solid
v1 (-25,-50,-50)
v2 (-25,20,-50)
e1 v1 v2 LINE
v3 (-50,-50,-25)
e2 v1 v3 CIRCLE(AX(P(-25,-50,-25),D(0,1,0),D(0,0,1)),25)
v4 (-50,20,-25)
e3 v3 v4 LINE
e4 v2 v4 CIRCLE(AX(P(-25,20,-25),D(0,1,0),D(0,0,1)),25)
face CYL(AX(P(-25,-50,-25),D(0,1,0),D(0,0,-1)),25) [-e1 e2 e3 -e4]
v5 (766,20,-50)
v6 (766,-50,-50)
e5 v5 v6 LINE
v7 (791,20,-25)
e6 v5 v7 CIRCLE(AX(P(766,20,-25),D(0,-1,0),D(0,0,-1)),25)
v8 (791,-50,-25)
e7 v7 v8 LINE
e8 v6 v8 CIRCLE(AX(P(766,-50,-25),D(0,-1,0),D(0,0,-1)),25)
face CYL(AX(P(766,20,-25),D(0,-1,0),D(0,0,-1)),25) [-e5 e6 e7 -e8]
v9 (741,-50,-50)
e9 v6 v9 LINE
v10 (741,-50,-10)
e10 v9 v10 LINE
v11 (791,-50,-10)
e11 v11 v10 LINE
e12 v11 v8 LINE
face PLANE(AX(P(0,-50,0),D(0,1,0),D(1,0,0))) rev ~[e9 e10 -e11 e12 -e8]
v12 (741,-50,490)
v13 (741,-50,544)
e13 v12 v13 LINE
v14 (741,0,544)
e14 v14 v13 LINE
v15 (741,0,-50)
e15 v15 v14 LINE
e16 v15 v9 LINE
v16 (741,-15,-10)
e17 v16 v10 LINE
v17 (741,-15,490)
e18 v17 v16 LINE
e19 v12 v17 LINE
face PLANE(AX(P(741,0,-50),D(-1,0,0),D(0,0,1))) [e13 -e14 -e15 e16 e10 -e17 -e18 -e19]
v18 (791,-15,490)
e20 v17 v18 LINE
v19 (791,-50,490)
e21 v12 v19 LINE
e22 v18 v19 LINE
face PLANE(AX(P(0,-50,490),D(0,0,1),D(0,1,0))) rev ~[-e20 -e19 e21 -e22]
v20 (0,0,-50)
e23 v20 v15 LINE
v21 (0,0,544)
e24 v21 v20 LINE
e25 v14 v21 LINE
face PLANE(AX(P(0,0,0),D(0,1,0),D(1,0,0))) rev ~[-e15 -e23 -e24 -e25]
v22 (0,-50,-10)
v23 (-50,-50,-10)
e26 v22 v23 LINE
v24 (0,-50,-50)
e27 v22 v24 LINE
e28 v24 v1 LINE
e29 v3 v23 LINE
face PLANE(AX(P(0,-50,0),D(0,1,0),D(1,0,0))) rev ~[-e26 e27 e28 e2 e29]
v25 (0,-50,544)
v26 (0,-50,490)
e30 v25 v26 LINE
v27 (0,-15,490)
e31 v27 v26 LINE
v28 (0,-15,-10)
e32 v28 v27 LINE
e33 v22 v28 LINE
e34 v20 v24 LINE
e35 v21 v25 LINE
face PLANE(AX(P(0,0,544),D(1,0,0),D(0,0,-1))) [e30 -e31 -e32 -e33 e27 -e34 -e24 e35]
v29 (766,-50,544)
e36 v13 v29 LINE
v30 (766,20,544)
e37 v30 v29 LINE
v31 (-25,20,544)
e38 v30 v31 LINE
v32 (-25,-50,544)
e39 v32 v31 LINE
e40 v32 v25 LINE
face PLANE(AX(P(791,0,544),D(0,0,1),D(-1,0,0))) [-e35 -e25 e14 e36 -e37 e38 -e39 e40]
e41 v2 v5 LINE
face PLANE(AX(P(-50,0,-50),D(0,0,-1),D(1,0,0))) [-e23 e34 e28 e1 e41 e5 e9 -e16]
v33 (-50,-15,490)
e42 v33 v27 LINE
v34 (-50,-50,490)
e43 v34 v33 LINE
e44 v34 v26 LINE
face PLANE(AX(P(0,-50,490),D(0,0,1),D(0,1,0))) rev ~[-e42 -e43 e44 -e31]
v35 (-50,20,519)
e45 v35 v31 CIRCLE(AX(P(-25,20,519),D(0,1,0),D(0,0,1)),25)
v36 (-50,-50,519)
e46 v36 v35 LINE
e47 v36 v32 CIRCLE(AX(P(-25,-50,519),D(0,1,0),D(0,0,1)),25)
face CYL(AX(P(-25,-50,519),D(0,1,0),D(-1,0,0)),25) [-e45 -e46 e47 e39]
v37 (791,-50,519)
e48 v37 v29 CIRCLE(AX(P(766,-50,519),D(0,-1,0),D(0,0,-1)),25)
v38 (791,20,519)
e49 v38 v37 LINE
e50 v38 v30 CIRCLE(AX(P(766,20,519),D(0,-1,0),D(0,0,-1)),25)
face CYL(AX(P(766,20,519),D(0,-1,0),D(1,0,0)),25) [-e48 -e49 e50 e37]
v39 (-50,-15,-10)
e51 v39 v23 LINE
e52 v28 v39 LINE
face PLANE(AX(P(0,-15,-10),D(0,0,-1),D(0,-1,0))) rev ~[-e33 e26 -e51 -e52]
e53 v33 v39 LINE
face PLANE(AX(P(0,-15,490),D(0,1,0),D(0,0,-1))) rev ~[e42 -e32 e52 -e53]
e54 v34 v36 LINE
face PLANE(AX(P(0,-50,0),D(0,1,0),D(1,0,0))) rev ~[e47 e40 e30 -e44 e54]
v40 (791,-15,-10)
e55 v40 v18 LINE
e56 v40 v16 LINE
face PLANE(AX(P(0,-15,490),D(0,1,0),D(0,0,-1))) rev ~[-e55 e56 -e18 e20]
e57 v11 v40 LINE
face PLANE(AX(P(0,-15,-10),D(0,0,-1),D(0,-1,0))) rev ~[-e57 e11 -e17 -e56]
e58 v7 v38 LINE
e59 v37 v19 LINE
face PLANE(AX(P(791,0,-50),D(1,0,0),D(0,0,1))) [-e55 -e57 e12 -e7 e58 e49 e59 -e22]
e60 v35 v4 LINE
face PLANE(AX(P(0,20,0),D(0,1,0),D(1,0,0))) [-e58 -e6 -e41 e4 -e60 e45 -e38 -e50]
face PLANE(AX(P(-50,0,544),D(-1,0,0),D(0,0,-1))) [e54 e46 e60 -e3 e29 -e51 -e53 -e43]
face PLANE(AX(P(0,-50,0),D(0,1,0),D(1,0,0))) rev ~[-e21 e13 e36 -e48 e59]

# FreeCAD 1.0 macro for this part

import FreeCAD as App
import Part
import Sketcher

V = App.Vector
Q = App.Units.Quantity


def edges_at(feature, points):
    """Names of the edges that pass closest to the given points."""
    edges = feature.Shape.Edges
    near = lambda p: min(range(len(edges)), key=lambda i: edges[i].distToShape(Part.Vertex(*p))[0])
    return sorted({f"Edge{near(p) + 1}" for p in points})

doc = App.newDocument("Part")
body = doc.addObject("PartDesign::Body", "Body")

# Sketch on XZ plane
sketch1 = body.newObject("Sketcher::SketchObject", "Sketch")
sketch1.AttachmentSupport = (doc.getObject("XZ_Plane"), [""])
sketch1.MapMode = "FlatFace"
sketch1.addGeometry([
    Part.LineSegment(V(791, -50, 0), V(-50, -50, 0)),
    Part.LineSegment(V(-50, -50, 0), V(-50, 544, 0)),
    Part.LineSegment(V(-50, 544, 0), V(791, 544, 0)),
    Part.LineSegment(V(791, 544, 0), V(791, -50, 0)),
], False)
sketch1.addConstraint([
    Sketcher.Constraint("Coincident", 0, 2, 1, 1),
    Sketcher.Constraint("Coincident", 1, 2, 2, 1),
    Sketcher.Constraint("Coincident", 2, 2, 3, 1),
    Sketcher.Constraint("Coincident", 3, 2, 0, 1),
    Sketcher.Constraint("Horizontal", 0),
    Sketcher.Constraint("Vertical", 1),
    Sketcher.Constraint("Horizontal", 2),
    Sketcher.Constraint("Vertical", 3),
    Sketcher.Constraint("DistanceX", 0, 2, 0, 1, Q("841 mm")),
    Sketcher.Constraint("DistanceY", 1, 1, 1, 2, Q("594 mm")),
    Sketcher.Constraint("DistanceX", 0, 2, -1, 1, Q("50 mm")),
    Sketcher.Constraint("DistanceY", 0, 2, -1, 1, Q("50 mm")),
])
pad1 = body.newObject("PartDesign::Pad", "Pad")
pad1.Profile = sketch1
pad1.Length = 20
pad1.Reversed = True

# Sketch on XZ plane
sketch2 = body.newObject("Sketcher::SketchObject", "Sketch001")
sketch2.AttachmentSupport = (doc.getObject("XZ_Plane"), [""])
sketch2.MapMode = "FlatFace"
sketch2.addGeometry([
    Part.LineSegment(V(-50, -50, 0), V(-50, 544, 0)),  # 0
    Part.LineSegment(V(-50, 544, 0), V(0, 544, 0)),  # 1
    Part.LineSegment(V(0, 544, 0), V(0, -50, 0)),  # 2
    Part.LineSegment(V(0, -50, 0), V(-50, -50, 0)),  # 3
    Part.LineSegment(V(741, -50, 0), V(741, 544, 0)),  # 4
    Part.LineSegment(V(741, 544, 0), V(791, 544, 0)),  # 5
    Part.LineSegment(V(791, 544, 0), V(791, -50, 0)),  # 6
    Part.LineSegment(V(791, -50, 0), V(741, -50, 0)),  # 7
], False)
sketch2.addConstraint([
    Sketcher.Constraint("Coincident", 0, 2, 1, 1),
    Sketcher.Constraint("Coincident", 1, 2, 2, 1),
    Sketcher.Constraint("Coincident", 2, 2, 3, 1),
    Sketcher.Constraint("Coincident", 3, 2, 0, 1),
    Sketcher.Constraint("Coincident", 4, 2, 5, 1),
    Sketcher.Constraint("Coincident", 5, 2, 6, 1),
    Sketcher.Constraint("Coincident", 6, 2, 7, 1),
    Sketcher.Constraint("Coincident", 7, 2, 4, 1),
    Sketcher.Constraint("Vertical", 0),
    Sketcher.Constraint("Horizontal", 1),
    Sketcher.Constraint("Vertical", 2),
    Sketcher.Constraint("Horizontal", 3),
    Sketcher.Constraint("Vertical", 4),
    Sketcher.Constraint("Horizontal", 5),
    Sketcher.Constraint("Vertical", 6),
    Sketcher.Constraint("Horizontal", 7),
    Sketcher.Constraint("PointOnObject", 1, 2, -2),
    Sketcher.Constraint("Horizontal", 1, 2, 4, 2),
    Sketcher.Constraint("Horizontal", 3, 2, 6, 2),
    Sketcher.Constraint("Equal", 3, 5),
    Sketcher.Constraint("DistanceX", 1, 1, 1, 2, Q("50 mm")),
    Sketcher.Constraint("DistanceY", 0, 1, 0, 2, Q("594 mm")),
    Sketcher.Constraint("DistanceY", 2, 2, -1, 1, Q("50 mm")),
    Sketcher.Constraint("DistanceX", -1, 1, 4, 2, Q("741 mm")),
])
pad2 = body.newObject("PartDesign::Pad", "Pad001")
pad2.Profile = sketch2
pad2.Length = 50

# Sketch on YZ plane
sketch3 = body.newObject("Sketcher::SketchObject", "Sketch002")
sketch3.AttachmentSupport = (doc.getObject("YZ_Plane"), [""])
sketch3.MapMode = "FlatFace"
sketch3.addGeometry([
    Part.LineSegment(V(-15, -10, 0), V(-15, 490, 0)),
    Part.LineSegment(V(-15, 490, 0), V(-50, 490, 0)),
    Part.LineSegment(V(-50, 490, 0), V(-50, -10, 0)),
    Part.LineSegment(V(-50, -10, 0), V(-15, -10, 0)),
], False)
sketch3.addConstraint([
    Sketcher.Constraint("Coincident", 0, 2, 1, 1),
    Sketcher.Constraint("Coincident", 1, 2, 2, 1),
    Sketcher.Constraint("Coincident", 2, 2, 3, 1),
    Sketcher.Constraint("Coincident", 3, 2, 0, 1),
    Sketcher.Constraint("Vertical", 0),
    Sketcher.Constraint("Horizontal", 1),
    Sketcher.Constraint("Vertical", 2),
    Sketcher.Constraint("Horizontal", 3),
    Sketcher.Constraint("DistanceX", 1, 2, 1, 1, Q("35 mm")),
    Sketcher.Constraint("DistanceY", 0, 1, 0, 2, Q("500 mm")),
    Sketcher.Constraint("DistanceX", 0, 2, -1, 1, Q("15 mm")),
    Sketcher.Constraint("DistanceY", -1, 1, 0, 2, Q("490 mm")),
])
pocket1 = body.newObject("PartDesign::Pocket", "Pocket")
pocket1.Profile = sketch3
pocket1.Length = 1850
pocket1.Midplane = True
doc.recompute()

fillet = body.newObject("PartDesign::Fillet", "Fillet")
fillet.Base = (pocket1, edges_at(pocket1, [
    (-50, -15, 544),
    (-50, -15, -50),
    (791, -15, 544),
    (791, -15, -50),
]))
fillet.Radius = 25

doc.recompute()
